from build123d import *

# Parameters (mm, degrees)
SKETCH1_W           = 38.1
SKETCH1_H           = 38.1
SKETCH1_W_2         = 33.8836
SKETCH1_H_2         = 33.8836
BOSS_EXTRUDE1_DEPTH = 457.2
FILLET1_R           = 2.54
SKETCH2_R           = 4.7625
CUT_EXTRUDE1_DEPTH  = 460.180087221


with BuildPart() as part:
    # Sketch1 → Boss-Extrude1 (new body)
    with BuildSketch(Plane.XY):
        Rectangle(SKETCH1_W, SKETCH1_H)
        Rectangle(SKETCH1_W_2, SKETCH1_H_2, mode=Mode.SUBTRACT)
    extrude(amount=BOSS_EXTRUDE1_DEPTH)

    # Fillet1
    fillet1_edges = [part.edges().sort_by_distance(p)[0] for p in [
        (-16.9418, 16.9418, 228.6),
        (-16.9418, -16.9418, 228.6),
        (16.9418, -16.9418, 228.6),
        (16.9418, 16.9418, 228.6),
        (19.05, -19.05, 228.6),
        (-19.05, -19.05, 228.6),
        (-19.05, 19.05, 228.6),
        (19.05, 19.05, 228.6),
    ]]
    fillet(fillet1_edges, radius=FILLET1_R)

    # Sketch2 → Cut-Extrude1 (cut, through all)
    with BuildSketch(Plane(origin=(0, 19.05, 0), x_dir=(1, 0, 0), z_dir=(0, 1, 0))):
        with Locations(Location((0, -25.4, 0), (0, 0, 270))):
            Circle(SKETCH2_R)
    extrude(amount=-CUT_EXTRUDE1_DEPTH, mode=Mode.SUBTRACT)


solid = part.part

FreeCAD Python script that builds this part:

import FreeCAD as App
import Part
import Sketcher
from FreeCAD import Vector
Q = App.Units.Quantity


def edges_at(feature, points):
    """Names of the edges that pass closest to the given points."""
    edges = feature.Shape.Edges
    near = lambda p: min(range(len(edges)), key=lambda i: edges[i].distToShape(Part.Vertex(*p))[0])
    return sorted({f"Edge{near(p) + 1}" for p in points})

doc = App.newDocument("Part")
body = doc.addObject("PartDesign::Body", "Body")

# Sketch on XY plane
sketch1 = body.newObject("Sketcher::SketchObject", "Sketch")
sketch1.AttachmentSupport = (doc.getObject("XY_Plane"), [""])
sketch1.MapMode = "FlatFace"
sketch1.addGeometry(Part.LineSegment(Vector(-19.05, 19.05, 0), Vector(-19.05, -19.05, 0)), False)
sketch1.addGeometry(Part.LineSegment(Vector(-19.05, -19.05, 0), Vector(19.05, -19.05, 0)), False)
sketch1.addGeometry(Part.LineSegment(Vector(19.05, -19.05, 0), Vector(19.05, 19.05, 0)), False)
sketch1.addGeometry(Part.LineSegment(Vector(19.05, 19.05, 0), Vector(-19.05, 19.05, 0)), False)
sketch1.addGeometry(Part.LineSegment(Vector(16.9418, -16.9418, 0), Vector(-16.9418, -16.9418, 0)), False)
sketch1.addGeometry(Part.LineSegment(Vector(-16.9418, -16.9418, 0), Vector(-16.9418, 16.9418, 0)), False)
sketch1.addGeometry(Part.LineSegment(Vector(-16.9418, 16.9418, 0), Vector(16.9418, 16.9418, 0)), False)
sketch1.addGeometry(Part.LineSegment(Vector(16.9418, 16.9418, 0), Vector(16.9418, -16.9418, 0)), False)
sketch1.addConstraint(Sketcher.Constraint("Coincident", 0, 2, 1, 1))
sketch1.addConstraint(Sketcher.Constraint("Coincident", 1, 2, 2, 1))
sketch1.addConstraint(Sketcher.Constraint("Coincident", 2, 2, 3, 1))
sketch1.addConstraint(Sketcher.Constraint("Coincident", 3, 2, 0, 1))
sketch1.addConstraint(Sketcher.Constraint("Coincident", 4, 2, 5, 1))
sketch1.addConstraint(Sketcher.Constraint("Coincident", 5, 2, 6, 1))
sketch1.addConstraint(Sketcher.Constraint("Coincident", 6, 2, 7, 1))
sketch1.addConstraint(Sketcher.Constraint("Coincident", 7, 2, 4, 1))
sketch1.addConstraint(Sketcher.Constraint("Vertical", 0))
sketch1.addConstraint(Sketcher.Constraint("Horizontal", 1))
sketch1.addConstraint(Sketcher.Constraint("Vertical", 2))
sketch1.addConstraint(Sketcher.Constraint("Horizontal", 3))
sketch1.addConstraint(Sketcher.Constraint("Horizontal", 4))
sketch1.addConstraint(Sketcher.Constraint("Vertical", 5))
sketch1.addConstraint(Sketcher.Constraint("Horizontal", 6))
sketch1.addConstraint(Sketcher.Constraint("Vertical", 7))
sketch1.addConstraint(Sketcher.Constraint("Symmetric", 0, 2, 2, 2, -1, 1))
sketch1.addConstraint(Sketcher.Constraint("Symmetric", 4, 2, 6, 2, -1, 1))
sketch1.addConstraint(Sketcher.Constraint("Equal", 3, 0))
sketch1.addConstraint(Sketcher.Constraint("Equal", 6, 5))
sketch1.addConstraint(Sketcher.Constraint("DistanceX", 1, 1, 1, 2, Q("1.5 in")))
sketch1.addConstraint(Sketcher.Constraint("DistanceX", 4, 2, 4, 1, Q("1.334 in")))
pad1 = body.newObject("PartDesign::Pad", "Pad")
pad1.Profile = sketch1
pad1.Length = Q("18 in")
doc.recompute()

fillet = body.newObject("PartDesign::Fillet", "Fillet")
fillet.Base = (pad1, edges_at(pad1, [
    (-16.942, 16.942, 228.6),
    (-16.942, -16.942, 228.6),
    (16.942, -16.942, 228.6),
    (16.942, 16.942, 228.6),
    (19.05, -19.05, 228.6),
    (-19.05, -19.05, 228.6),
    (-19.05, 19.05, 228.6),
    (19.05, 19.05, 228.6),
]))
fillet.Radius = Q("0.1 in")

# Sketch on XZ plane
sketch2 = body.newObject("Sketcher::SketchObject", "Sketch001")
sketch2.AttachmentSupport = (doc.getObject("XZ_Plane"), [""])
sketch2.MapMode = "FlatFace"
sketch2.AttachmentOffset = App.Placement(Vector(0, 0, -0.75 * 25.4), App.Rotation())
sketch2.addGeometry(Part.Circle(Vector(0, 25.4, 0), Vector(0, 0, 1), 4.7625), False)
sketch2.addConstraint(Sketcher.Constraint("PointOnObject", 0, 3, -2))
sketch2.addConstraint(Sketcher.Constraint("Diameter", 0, Q("0.375 in")))
sketch2.addConstraint(Sketcher.Constraint("DistanceY", -1, 1, 0, 3, Q("1 in")))
pocket1 = body.newObject("PartDesign::Pocket", "Pocket")
pocket1.Profile = sketch2
pocket1.Type = "ThroughAll"
pocket1.Reversed = True

doc.recompute()
